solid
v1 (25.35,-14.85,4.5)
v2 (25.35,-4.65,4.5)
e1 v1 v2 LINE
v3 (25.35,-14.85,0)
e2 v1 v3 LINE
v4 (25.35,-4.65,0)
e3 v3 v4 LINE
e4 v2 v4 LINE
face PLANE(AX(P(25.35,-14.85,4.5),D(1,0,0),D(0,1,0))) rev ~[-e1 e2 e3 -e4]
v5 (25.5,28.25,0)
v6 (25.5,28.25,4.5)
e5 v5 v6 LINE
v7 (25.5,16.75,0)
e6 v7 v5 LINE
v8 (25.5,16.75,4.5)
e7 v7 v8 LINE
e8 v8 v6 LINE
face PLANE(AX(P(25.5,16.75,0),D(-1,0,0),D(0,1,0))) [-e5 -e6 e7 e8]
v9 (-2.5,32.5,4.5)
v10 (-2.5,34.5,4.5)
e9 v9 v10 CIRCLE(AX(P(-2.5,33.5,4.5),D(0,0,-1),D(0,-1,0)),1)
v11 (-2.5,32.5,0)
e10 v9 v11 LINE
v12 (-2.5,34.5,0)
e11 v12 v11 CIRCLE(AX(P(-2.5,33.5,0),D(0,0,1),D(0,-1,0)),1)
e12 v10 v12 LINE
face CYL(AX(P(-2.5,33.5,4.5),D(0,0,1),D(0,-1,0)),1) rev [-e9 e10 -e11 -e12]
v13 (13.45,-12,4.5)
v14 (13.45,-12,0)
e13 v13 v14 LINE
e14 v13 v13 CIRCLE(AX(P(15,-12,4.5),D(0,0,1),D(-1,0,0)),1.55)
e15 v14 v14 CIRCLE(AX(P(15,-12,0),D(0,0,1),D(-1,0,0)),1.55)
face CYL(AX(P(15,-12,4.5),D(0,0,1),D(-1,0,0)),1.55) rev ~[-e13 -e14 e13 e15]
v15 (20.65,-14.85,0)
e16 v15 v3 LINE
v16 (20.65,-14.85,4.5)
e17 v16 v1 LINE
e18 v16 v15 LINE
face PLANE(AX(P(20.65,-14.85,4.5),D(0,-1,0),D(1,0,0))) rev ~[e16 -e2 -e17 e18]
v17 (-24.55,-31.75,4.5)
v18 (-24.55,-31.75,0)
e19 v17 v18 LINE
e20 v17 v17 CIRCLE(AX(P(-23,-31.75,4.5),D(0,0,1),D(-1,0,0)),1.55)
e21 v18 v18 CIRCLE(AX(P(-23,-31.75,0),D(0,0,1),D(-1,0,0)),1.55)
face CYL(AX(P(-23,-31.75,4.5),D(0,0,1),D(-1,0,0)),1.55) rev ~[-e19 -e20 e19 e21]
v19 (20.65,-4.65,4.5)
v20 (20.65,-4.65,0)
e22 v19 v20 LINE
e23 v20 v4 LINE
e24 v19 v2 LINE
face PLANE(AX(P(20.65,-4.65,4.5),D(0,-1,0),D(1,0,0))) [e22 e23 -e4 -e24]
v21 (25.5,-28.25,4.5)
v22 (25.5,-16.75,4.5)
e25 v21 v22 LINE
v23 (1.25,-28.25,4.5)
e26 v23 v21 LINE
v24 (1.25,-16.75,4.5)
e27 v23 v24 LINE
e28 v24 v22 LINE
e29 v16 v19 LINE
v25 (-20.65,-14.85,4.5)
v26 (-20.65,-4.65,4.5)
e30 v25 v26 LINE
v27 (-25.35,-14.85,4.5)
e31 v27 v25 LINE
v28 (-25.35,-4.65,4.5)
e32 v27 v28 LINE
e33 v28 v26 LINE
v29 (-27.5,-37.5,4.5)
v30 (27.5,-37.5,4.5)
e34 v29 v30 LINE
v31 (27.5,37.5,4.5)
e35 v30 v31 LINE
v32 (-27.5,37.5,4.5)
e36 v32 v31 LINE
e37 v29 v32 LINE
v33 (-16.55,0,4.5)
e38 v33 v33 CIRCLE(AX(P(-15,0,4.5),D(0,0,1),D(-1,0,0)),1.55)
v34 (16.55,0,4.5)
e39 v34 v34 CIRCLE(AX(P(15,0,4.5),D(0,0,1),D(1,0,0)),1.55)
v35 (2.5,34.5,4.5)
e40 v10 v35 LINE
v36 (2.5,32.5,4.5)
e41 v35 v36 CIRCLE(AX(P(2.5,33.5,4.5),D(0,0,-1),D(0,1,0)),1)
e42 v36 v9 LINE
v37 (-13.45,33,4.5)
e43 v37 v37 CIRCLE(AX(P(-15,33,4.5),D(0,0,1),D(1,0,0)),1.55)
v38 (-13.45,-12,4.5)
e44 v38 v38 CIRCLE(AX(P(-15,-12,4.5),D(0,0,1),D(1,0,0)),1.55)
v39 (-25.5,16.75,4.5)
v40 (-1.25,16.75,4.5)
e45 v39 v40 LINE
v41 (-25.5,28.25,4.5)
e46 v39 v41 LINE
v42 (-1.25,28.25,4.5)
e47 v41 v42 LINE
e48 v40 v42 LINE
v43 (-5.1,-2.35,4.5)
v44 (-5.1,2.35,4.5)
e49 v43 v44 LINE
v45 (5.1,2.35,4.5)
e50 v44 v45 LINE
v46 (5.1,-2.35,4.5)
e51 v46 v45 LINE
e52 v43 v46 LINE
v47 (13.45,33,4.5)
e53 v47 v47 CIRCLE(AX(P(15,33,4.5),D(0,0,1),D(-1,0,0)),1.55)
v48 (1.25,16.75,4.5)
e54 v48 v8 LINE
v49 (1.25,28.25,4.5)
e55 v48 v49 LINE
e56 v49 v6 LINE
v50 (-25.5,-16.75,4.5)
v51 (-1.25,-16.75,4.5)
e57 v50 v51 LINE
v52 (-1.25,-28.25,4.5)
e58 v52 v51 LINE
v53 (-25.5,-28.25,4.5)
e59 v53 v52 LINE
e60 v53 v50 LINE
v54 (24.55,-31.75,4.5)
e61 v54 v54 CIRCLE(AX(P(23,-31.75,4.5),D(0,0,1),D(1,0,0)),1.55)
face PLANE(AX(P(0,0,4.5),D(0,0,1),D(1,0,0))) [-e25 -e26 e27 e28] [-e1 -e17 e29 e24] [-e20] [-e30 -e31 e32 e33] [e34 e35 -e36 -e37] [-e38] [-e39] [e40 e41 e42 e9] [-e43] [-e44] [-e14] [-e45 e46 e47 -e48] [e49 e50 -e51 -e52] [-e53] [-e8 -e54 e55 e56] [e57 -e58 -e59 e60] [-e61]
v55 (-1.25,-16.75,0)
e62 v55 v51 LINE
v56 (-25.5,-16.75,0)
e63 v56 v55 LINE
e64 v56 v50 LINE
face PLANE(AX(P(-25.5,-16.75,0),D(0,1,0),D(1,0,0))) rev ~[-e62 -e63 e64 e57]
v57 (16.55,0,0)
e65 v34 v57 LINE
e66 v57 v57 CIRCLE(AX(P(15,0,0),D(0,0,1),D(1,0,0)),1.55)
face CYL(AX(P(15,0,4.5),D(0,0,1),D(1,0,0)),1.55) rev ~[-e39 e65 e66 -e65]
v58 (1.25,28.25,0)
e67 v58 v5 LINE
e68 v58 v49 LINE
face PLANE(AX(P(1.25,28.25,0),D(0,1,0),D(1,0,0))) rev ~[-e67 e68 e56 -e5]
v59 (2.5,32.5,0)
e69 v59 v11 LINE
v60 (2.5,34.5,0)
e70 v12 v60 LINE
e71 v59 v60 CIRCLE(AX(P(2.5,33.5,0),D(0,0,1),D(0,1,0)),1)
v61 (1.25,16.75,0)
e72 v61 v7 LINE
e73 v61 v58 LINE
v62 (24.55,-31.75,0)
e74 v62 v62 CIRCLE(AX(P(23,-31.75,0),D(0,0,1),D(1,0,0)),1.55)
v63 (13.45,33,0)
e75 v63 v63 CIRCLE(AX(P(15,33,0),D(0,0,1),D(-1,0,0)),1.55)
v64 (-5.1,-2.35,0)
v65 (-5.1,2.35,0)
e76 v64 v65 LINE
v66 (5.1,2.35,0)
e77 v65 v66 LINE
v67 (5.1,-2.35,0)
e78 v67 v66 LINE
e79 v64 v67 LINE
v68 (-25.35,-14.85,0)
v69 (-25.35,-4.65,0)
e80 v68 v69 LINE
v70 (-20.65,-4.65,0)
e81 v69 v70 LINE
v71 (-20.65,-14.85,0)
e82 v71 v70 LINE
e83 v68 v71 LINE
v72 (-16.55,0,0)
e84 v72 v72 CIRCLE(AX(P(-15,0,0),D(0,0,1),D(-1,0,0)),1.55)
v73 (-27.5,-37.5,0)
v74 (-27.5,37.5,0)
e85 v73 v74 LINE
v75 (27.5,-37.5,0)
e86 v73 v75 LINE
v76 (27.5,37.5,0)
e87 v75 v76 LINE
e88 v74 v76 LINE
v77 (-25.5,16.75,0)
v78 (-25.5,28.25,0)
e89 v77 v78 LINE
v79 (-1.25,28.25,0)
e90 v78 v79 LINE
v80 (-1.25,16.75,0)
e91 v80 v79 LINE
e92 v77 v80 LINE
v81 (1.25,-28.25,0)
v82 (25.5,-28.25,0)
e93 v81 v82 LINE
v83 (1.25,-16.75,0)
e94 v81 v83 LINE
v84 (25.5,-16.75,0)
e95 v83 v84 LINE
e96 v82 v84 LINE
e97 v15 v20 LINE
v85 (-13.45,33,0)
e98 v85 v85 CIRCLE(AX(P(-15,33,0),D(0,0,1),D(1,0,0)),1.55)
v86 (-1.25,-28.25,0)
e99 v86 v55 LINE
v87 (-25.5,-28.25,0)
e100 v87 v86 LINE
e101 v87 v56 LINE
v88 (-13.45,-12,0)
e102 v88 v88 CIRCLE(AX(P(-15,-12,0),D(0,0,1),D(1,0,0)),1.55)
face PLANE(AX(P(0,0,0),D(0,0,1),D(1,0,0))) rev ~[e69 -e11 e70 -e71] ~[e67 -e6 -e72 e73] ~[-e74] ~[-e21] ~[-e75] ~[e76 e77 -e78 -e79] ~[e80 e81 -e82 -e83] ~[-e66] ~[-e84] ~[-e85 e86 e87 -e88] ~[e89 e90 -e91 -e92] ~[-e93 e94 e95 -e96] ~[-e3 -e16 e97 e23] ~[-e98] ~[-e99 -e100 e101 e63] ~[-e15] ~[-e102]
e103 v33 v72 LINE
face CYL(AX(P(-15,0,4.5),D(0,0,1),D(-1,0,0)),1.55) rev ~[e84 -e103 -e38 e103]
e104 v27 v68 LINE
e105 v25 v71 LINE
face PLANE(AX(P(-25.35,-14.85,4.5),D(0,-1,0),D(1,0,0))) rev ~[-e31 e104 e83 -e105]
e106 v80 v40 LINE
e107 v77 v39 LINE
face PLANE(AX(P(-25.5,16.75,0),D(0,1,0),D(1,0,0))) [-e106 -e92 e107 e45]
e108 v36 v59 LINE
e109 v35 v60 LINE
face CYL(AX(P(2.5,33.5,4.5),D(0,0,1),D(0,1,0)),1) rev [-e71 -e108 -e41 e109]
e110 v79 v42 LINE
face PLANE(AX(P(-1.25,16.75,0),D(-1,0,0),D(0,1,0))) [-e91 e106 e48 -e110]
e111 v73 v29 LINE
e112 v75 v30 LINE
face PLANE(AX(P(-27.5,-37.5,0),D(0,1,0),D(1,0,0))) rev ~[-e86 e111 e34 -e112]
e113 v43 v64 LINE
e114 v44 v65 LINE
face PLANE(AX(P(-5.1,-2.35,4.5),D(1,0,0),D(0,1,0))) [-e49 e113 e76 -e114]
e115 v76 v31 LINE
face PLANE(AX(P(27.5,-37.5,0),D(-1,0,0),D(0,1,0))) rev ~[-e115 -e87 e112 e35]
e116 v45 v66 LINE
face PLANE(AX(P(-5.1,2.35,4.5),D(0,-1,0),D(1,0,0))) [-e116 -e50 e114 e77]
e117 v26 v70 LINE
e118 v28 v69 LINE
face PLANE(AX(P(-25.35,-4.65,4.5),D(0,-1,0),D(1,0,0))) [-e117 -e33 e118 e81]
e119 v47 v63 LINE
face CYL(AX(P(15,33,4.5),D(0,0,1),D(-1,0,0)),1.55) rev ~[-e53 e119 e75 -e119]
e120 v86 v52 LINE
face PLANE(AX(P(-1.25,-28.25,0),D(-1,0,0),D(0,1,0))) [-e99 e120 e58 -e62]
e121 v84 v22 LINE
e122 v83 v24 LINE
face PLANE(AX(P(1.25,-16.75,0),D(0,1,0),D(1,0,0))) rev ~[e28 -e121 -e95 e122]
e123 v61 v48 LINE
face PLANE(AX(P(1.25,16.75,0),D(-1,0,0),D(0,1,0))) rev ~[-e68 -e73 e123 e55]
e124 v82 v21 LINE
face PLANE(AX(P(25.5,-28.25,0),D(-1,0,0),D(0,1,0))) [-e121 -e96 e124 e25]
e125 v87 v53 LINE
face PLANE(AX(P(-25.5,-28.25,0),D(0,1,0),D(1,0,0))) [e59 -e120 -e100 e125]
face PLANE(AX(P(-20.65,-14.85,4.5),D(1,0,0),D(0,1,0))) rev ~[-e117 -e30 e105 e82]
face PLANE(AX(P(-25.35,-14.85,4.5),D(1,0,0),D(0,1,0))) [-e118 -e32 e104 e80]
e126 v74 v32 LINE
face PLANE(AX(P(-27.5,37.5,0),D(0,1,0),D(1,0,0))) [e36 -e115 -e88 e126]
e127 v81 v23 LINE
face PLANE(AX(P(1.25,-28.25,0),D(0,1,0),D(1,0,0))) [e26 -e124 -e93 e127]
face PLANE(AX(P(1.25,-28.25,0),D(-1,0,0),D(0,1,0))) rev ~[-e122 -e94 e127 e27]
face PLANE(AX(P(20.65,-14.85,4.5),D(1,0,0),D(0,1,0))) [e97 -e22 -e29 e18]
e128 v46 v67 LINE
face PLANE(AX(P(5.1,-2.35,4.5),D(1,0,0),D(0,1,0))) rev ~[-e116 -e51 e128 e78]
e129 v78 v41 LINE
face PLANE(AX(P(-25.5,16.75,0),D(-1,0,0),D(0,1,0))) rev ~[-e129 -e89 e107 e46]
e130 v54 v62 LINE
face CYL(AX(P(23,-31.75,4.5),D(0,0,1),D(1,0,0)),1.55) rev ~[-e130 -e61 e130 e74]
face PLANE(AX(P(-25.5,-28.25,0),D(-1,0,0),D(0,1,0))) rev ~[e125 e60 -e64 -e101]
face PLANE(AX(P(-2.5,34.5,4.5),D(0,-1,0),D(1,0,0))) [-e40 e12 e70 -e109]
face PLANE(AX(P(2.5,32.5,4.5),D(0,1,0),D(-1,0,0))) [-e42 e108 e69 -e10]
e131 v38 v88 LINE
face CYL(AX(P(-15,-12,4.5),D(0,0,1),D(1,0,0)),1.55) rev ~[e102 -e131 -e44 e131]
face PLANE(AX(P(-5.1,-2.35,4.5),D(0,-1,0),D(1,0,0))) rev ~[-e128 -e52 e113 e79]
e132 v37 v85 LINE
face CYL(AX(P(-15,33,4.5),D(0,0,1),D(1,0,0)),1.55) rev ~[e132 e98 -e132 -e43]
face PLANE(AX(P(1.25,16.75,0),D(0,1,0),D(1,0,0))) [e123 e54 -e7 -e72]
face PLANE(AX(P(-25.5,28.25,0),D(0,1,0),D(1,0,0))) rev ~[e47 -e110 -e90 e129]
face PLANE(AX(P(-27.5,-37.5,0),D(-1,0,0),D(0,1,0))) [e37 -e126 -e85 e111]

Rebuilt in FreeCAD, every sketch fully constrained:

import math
import FreeCAD as App
import Part
import Sketcher

V = App.Vector
Q = App.Units.Quantity

doc = App.newDocument("Part")
body = doc.addObject("PartDesign::Body", "Body")

# Sketch on XY plane
sketch1 = body.newObject("Sketcher::SketchObject", "Sketch")
sketch1.AttachmentSupport = (doc.getObject("XY_Plane"), [""])
sketch1.MapMode = "FlatFace"
sketch1.addGeometry([
    Part.LineSegment(V(-28, 38, 0), V(-28, -38, 0)),  # 0
    Part.LineSegment(V(-28, -38, 0), V(28, -38, 0)),  # 1
    Part.LineSegment(V(28, -38, 0), V(28, 38, 0)),  # 2
    Part.LineSegment(V(28, 38, 0), V(-28, 38, 0)),  # 3
    Part.LineSegment(V(-1, -28, 0), V(-26, -28, 0)),  # 4
    Part.LineSegment(V(-26, -28, 0), V(-26, -17, 0)),  # 5
    Part.LineSegment(V(-26, -17, 0), V(-1, -17, 0)),  # 6
    Part.LineSegment(V(-1, -17, 0), V(-1, -28, 0)),  # 7
    Part.LineSegment(V(26, -28, 0), V(1, -28, 0)),  # 8
    Part.LineSegment(V(1, -28, 0), V(1, -17, 0)),  # 9
    Part.LineSegment(V(1, -17, 0), V(26, -17, 0)),  # 10
    Part.LineSegment(V(26, -17, 0), V(26, -28, 0)),  # 11
    Part.LineSegment(V(-1, 17, 0), V(-26, 17, 0)),  # 12
    Part.LineSegment(V(-26, 17, 0), V(-26, 28, 0)),  # 13
    Part.LineSegment(V(-26, 28, 0), V(-1, 28, 0)),  # 14
    Part.LineSegment(V(-1, 28, 0), V(-1, 17, 0)),  # 15
    Part.LineSegment(V(26, 17, 0), V(1, 17, 0)),  # 16
    Part.LineSegment(V(1, 17, 0), V(1, 28, 0)),  # 17
    Part.LineSegment(V(1, 28, 0), V(26, 28, 0)),  # 18
    Part.LineSegment(V(26, 28, 0), V(26, 17, 0)),  # 19
], False)
sketch1.addConstraint([
    Sketcher.Constraint("Coincident", 0, 2, 1, 1),
    Sketcher.Constraint("Coincident", 1, 2, 2, 1),
    Sketcher.Constraint("Coincident", 2, 2, 3, 1),
    Sketcher.Constraint("Coincident", 3, 2, 0, 1),
    Sketcher.Constraint("Coincident", 4, 2, 5, 1),
    Sketcher.Constraint("Coincident", 5, 2, 6, 1),
    Sketcher.Constraint("Coincident", 6, 2, 7, 1),
    Sketcher.Constraint("Coincident", 7, 2, 4, 1),
    Sketcher.Constraint("Coincident", 8, 2, 9, 1),
    Sketcher.Constraint("Coincident", 9, 2, 10, 1),
    Sketcher.Constraint("Coincident", 10, 2, 11, 1),
    Sketcher.Constraint("Coincident", 11, 2, 8, 1),
    Sketcher.Constraint("Coincident", 12, 2, 13, 1),
    Sketcher.Constraint("Coincident", 13, 2, 14, 1),
    Sketcher.Constraint("Coincident", 14, 2, 15, 1),
    Sketcher.Constraint("Coincident", 15, 2, 12, 1),
    Sketcher.Constraint("Coincident", 16, 2, 17, 1),
    Sketcher.Constraint("Coincident", 17, 2, 18, 1),
    Sketcher.Constraint("Coincident", 18, 2, 19, 1),
    Sketcher.Constraint("Coincident", 19, 2, 16, 1),
    Sketcher.Constraint("Vertical", 0),
    Sketcher.Constraint("Horizontal", 1),
    Sketcher.Constraint("Vertical", 2),
    Sketcher.Constraint("Horizontal", 3),
    Sketcher.Constraint("Horizontal", 4),
    Sketcher.Constraint("Vertical", 5),
    Sketcher.Constraint("Horizontal", 6),
    Sketcher.Constraint("Vertical", 7),
    Sketcher.Constraint("Horizontal", 8),
    Sketcher.Constraint("Vertical", 9),
    Sketcher.Constraint("Horizontal", 10),
    Sketcher.Constraint("Vertical", 11),
    Sketcher.Constraint("Horizontal", 12),
    Sketcher.Constraint("Vertical", 13),
    Sketcher.Constraint("Horizontal", 14),
    Sketcher.Constraint("Vertical", 15),
    Sketcher.Constraint("Horizontal", 16),
    Sketcher.Constraint("Vertical", 17),
    Sketcher.Constraint("Horizontal", 18),
    Sketcher.Constraint("Vertical", 19),
    Sketcher.Constraint("Symmetric", 0, 2, 2, 2, -1, 1),
    Sketcher.Constraint("Symmetric", 10, 2, 12, 2, -1, 1),
    Sketcher.Constraint("Symmetric", 8, 2, 14, 2, -1, 1),
    Sketcher.Constraint("Symmetric", 6, 2, 16, 2, -1, 1),
    Sketcher.Constraint("Symmetric", 4, 2, 18, 2, -1, 1),
    Sketcher.Constraint("Symmetric", 7, 2, 8, 2, -2),
    Sketcher.Constraint("Symmetric", 5, 2, 10, 2, -2),
    Sketcher.Constraint("DistanceX", 1, 1, 1, 2, Q("55 mm")),
    Sketcher.Constraint("DistanceY", 0, 2, 0, 1, Q("75 mm")),
    Sketcher.Constraint("DistanceY", 5, 1, 5, 2, Q("11.5 mm")),
    Sketcher.Constraint("DistanceX", 0, 2, 4, 2, Q("2 mm")),
    Sketcher.Constraint("DistanceY", 4, 2, 12, 2, Q("45 mm")),
    Sketcher.Constraint("DistanceX", 4, 2, 4, 1, Q("24.25 mm")),
])
pad1 = body.newObject("PartDesign::Pad", "Pad")
pad1.Profile = sketch1
pad1.Length = 4.5

# Sketch on XY plane
sketch2 = body.newObject("Sketcher::SketchObject", "Sketch001")
sketch2.AttachmentSupport = (doc.getObject("XY_Plane"), [""])
sketch2.MapMode = "FlatFace"
sketch2.AttachmentOffset = App.Placement(V(0, 0, 4.5), App.Rotation())
sketch2.addGeometry([
    Part.Circle(V(-15, 33, 0), V(0, 0, 1), 1.6),
    Part.Circle(V(15, 33, 0), V(0, 0, 1), 1.6),
    Part.Circle(V(15, 0, 0), V(0, 0, 1), 1.6),
    Part.Circle(V(-15, 0, 0), V(0, 0, 1), 1.6),
], False)
sketch2.addConstraint([
    Sketcher.Constraint("Equal", 0, 1),
    Sketcher.Constraint("Equal", 1, 2),
    Sketcher.Constraint("Equal", 2, 3),
    Sketcher.Constraint("Symmetric", 2, 3, 3, 3, -1, 1),
    Sketcher.Constraint("Symmetric", 0, 3, 1, 3, -2),
    Sketcher.Constraint("PointOnObject", 2, 3, -1),
    Sketcher.Constraint("Vertical", 1, 3, 2, 3),
    Sketcher.Constraint("Diameter", 0, Q("3.1 mm")),
    Sketcher.Constraint("DistanceX", 0, 3, -1, 1, Q("15 mm")),
    Sketcher.Constraint("DistanceY", -1, 1, 0, 3, Q("33 mm")),
])
pocket1 = body.newObject("PartDesign::Pocket", "Pocket")
pocket1.Profile = sketch2
pocket1.Type = "ThroughAll"

# Sketch on XY plane
sketch3 = body.newObject("Sketcher::SketchObject", "Sketch002")
sketch3.AttachmentSupport = (doc.getObject("XY_Plane"), [""])
sketch3.MapMode = "FlatFace"
sketch3.AttachmentOffset = App.Placement(V(0, 0, 4.5), App.Rotation())
sketch3.addGeometry([
    Part.LineSegment(V(-5.1, 2.4, 0), V(-5.1, -2.4, 0)),
    Part.LineSegment(V(-5.1, -2.4, 0), V(5.1, -2.4, 0)),
    Part.LineSegment(V(5.1, -2.4, 0), V(5.1, 2.4, 0)),
    Part.LineSegment(V(5.1, 2.4, 0), V(-5.1, 2.4, 0)),
], False)
sketch3.addConstraint([
    Sketcher.Constraint("Coincident", 0, 2, 1, 1),
    Sketcher.Constraint("Coincident", 1, 2, 2, 1),
    Sketcher.Constraint("Coincident", 2, 2, 3, 1),
    Sketcher.Constraint("Coincident", 3, 2, 0, 1),
    Sketcher.Constraint("Vertical", 0),
    Sketcher.Constraint("Horizontal", 1),
    Sketcher.Constraint("Vertical", 2),
    Sketcher.Constraint("Horizontal", 3),
    Sketcher.Constraint("Symmetric", 0, 2, 2, 2, -1, 1),
    Sketcher.Constraint("DistanceX", 1, 1, 1, 2, Q("10.2 mm")),
    Sketcher.Constraint("DistanceY", 0, 2, 0, 1, Q("4.7 mm")),
])
pocket2 = body.newObject("PartDesign::Pocket", "Pocket001")
pocket2.Profile = sketch3
pocket2.Type = "ThroughAll"

# Sketch on XY plane
sketch4 = body.newObject("Sketcher::SketchObject", "Sketch003")
sketch4.AttachmentSupport = (doc.getObject("XY_Plane"), [""])
sketch4.MapMode = "FlatFace"
sketch4.AttachmentOffset = App.Placement(V(0, 0, 4.5), App.Rotation())
sketch4.addGeometry([
    Part.Circle(V(23, -31.8, 0), V(0, 0, 1), 1.6),  # 0
    Part.Circle(V(-23, -31.8, 0), V(0, 0, 1), 1.6),  # 1
    Part.LineSegment(V(20.6, -4.7, 0), V(20.6, -14.8, 0)),  # 2
    Part.LineSegment(V(20.6, -14.8, 0), V(25.4, -14.8, 0)),  # 3
    Part.LineSegment(V(25.4, -14.8, 0), V(25.4, -4.7, 0)),  # 4
    Part.LineSegment(V(25.4, -4.7, 0), V(20.6, -4.7, 0)),  # 5
    Part.LineSegment(V(-25.4, -4.7, 0), V(-25.4, -14.8, 0)),  # 6
    Part.LineSegment(V(-25.4, -14.8, 0), V(-20.6, -14.8, 0)),  # 7
    Part.LineSegment(V(-20.6, -14.8, 0), V(-20.6, -4.7, 0)),  # 8
    Part.LineSegment(V(-20.6, -4.7, 0), V(-25.4, -4.7, 0)),  # 9
], False)
sketch4.addConstraint([
    Sketcher.Constraint("Coincident", 2, 2, 3, 1),
    Sketcher.Constraint("Coincident", 3, 2, 4, 1),
    Sketcher.Constraint("Coincident", 4, 2, 5, 1),
    Sketcher.Constraint("Coincident", 5, 2, 2, 1),
    Sketcher.Constraint("Coincident", 6, 2, 7, 1),
    Sketcher.Constraint("Coincident", 7, 2, 8, 1),
    Sketcher.Constraint("Coincident", 8, 2, 9, 1),
    Sketcher.Constraint("Coincident", 9, 2, 6, 1),
    Sketcher.Constraint("Vertical", 2),
    Sketcher.Constraint("Horizontal", 3),
    Sketcher.Constraint("Vertical", 4),
    Sketcher.Constraint("Horizontal", 5),
    Sketcher.Constraint("Vertical", 6),
    Sketcher.Constraint("Horizontal", 7),
    Sketcher.Constraint("Vertical", 8),
    Sketcher.Constraint("Horizontal", 9),
    Sketcher.Constraint("Equal", 0, 1),
    Sketcher.Constraint("Symmetric", 0, 3, 1, 3, -2),
    Sketcher.Constraint("Symmetric", 3, 2, 6, 2, -2),
    Sketcher.Constraint("Symmetric", 5, 2, 8, 2, -2),
    Sketcher.Constraint("Diameter", 0, Q("3.1 mm")),
    Sketcher.Constraint("DistanceX", 3, 1, 3, 2, Q("4.7 mm")),
    Sketcher.Constraint("DistanceY", 2, 2, 2, 1, Q("10.2 mm")),
    Sketcher.Constraint("DistanceX", -1, 1, 0, 3, Q("23 mm")),
    Sketcher.Constraint("DistanceX", 6, 2, 2, 2, Q("46 mm")),
    Sketcher.Constraint("DistanceY", 0, 3, 2, 2, Q("16.9 mm")),
    Sketcher.Constraint("DistanceY", 0, 3, -1, 1, Q("31.75 mm")),
])
pocket3 = body.newObject("PartDesign::Pocket", "Pocket002")
pocket3.Profile = sketch4
pocket3.Type = "ThroughAll"

# Sketch on XY plane
sketch5 = body.newObject("Sketcher::SketchObject", "Sketch004")
sketch5.AttachmentSupport = (doc.getObject("XY_Plane"), [""])
sketch5.MapMode = "FlatFace"
sketch5.AttachmentOffset = App.Placement(V(0, 0, 4.5), App.Rotation())
sketch5.addGeometry([
    Part.Circle(V(-15, -12, 0), V(0, 0, 1), 1.6),
    Part.Circle(V(15, -12, 0), V(0, 0, 1), 1.6),
], False)
sketch5.addConstraint([
    Sketcher.Constraint("Equal", 0, 1),
    Sketcher.Constraint("Symmetric", 0, 3, 1, 3, -2),
    Sketcher.Constraint("Diameter", 0, Q("3.1 mm")),
    Sketcher.Constraint("DistanceX", 0, 3, -1, 1, Q("15 mm")),
    Sketcher.Constraint("DistanceY", 0, 3, -1, 1, Q("12 mm")),
])
pocket4 = body.newObject("PartDesign::Pocket", "Pocket003")
pocket4.Profile = sketch5
pocket4.Type = "ThroughAll"

# Sketch on XY plane
sketch6 = body.newObject("Sketcher::SketchObject", "Sketch005")
sketch6.AttachmentSupport = (doc.getObject("XY_Plane"), [""])
sketch6.MapMode = "FlatFace"
sketch6.AttachmentOffset = App.Placement(V(0, 0, 4.5), App.Rotation())
sketch6.addGeometry([
    Part.LineSegment(V(2.5, 34.5, 0), V(-2.5, 34.5, 0)),
    Part.ArcOfCircle(Part.Circle(V(-2.5, 33.5, 0), V(0, 0, 1), 1), math.radians(90), math.radians(270)),
    Part.LineSegment(V(-2.5, 32.5, 0), V(2.5, 32.5, 0)),
    Part.ArcOfCircle(Part.Circle(V(2.5, 33.5, 0), V(0, 0, 1), 1), math.radians(-90), math.radians(90)),
], False)
sketch6.addConstraint([
    Sketcher.Constraint("Tangent", 0, 2, 1, 1),
    Sketcher.Constraint("Tangent", 1, 2, 2, 1),
    Sketcher.Constraint("Tangent", 2, 2, 3, 1),
    Sketcher.Constraint("Tangent", 3, 2, 0, 1),
    Sketcher.Constraint("Horizontal", 0),
    Sketcher.Constraint("Horizontal", 2),
    Sketcher.Constraint("Radius", 1, Q("1 mm")),
    Sketcher.Constraint("DistanceX", 0, 2, 0, 1, Q("5 mm")),
    Sketcher.Constraint("DistanceX", 1, 3, -1, 1, Q("2.5 mm")),
    Sketcher.Constraint("DistanceY", -1, 1, 1, 3, Q("33.5 mm")),
])
pocket5 = body.newObject("PartDesign::Pocket", "Pocket004")
pocket5.Profile = sketch6
pocket5.Type = "ThroughAll"

doc.recompute()
